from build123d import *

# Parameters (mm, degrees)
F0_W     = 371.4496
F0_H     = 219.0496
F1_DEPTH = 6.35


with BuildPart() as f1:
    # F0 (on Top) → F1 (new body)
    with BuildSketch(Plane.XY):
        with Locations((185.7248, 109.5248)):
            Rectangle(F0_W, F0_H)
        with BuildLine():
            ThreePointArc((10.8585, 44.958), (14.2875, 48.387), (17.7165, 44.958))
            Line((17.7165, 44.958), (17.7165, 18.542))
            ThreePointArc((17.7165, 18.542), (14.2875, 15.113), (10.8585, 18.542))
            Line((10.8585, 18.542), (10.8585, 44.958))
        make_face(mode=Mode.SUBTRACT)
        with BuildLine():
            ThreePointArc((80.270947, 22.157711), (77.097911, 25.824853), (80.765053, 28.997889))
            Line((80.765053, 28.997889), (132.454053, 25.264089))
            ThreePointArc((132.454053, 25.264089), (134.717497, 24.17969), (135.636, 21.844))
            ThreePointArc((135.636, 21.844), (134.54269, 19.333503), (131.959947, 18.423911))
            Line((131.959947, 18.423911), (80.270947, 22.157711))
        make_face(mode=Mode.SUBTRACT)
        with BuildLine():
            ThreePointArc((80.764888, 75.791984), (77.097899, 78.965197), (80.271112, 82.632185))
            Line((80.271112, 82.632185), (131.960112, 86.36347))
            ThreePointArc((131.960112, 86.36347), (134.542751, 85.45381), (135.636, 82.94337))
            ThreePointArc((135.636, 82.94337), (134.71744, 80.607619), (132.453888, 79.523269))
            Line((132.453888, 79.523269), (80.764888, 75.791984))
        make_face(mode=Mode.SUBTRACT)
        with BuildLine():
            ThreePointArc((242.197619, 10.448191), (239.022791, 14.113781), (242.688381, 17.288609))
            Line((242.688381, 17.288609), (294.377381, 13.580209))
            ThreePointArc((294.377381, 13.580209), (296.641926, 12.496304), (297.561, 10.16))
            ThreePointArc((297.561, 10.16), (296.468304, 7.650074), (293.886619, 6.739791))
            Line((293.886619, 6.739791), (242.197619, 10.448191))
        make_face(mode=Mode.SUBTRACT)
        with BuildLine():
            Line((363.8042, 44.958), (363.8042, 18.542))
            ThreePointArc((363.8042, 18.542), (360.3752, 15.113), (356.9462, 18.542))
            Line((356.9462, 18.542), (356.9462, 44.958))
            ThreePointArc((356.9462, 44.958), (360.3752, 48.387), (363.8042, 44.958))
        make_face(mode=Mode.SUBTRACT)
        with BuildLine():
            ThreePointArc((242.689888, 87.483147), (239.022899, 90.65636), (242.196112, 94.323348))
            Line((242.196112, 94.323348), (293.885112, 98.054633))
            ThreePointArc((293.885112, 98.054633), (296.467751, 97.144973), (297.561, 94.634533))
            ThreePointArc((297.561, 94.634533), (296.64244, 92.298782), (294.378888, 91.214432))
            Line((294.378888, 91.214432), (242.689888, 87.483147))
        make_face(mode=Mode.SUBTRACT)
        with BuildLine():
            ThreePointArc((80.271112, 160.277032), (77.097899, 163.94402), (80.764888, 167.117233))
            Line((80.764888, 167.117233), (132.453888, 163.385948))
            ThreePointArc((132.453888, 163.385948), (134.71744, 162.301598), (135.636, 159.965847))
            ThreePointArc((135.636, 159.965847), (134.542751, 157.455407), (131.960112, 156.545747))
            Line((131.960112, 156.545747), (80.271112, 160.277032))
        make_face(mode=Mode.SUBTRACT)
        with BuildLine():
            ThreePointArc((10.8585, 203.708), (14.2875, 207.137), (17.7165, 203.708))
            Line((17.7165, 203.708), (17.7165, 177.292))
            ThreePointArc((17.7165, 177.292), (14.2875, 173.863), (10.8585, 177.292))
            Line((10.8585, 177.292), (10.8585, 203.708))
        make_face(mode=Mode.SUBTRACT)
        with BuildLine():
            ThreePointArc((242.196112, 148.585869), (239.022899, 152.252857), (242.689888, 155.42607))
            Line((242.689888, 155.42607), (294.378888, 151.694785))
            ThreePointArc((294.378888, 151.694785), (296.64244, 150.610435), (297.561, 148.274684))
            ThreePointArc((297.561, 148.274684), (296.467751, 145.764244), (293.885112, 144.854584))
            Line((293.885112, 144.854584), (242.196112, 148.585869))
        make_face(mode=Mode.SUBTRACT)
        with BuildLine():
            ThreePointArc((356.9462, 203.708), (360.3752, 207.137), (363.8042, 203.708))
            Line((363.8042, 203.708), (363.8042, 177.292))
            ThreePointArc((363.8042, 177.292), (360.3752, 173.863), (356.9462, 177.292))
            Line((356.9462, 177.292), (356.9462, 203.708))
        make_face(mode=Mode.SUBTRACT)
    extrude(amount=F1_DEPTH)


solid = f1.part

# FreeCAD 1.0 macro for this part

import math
import FreeCAD as App
import Part
import Sketcher

V = App.Vector
Q = App.Units.Quantity


def add_polygon(sketch, points):
    """Adds a closed chain of lines whose ends are joined by coincident constraints."""
    first, n = sketch.GeometryCount, len(points)
    for a, b in zip(points, points[1:] + points[:1]):
        sketch.addGeometry(Part.LineSegment(App.Vector(*a, 0), App.Vector(*b, 0)), False)
    for i in range(n):
        sketch.addConstraint(Sketcher.Constraint("Coincident", first + i, 2, first + (i + 1) % n, 1))

doc = App.newDocument("Part")
body = doc.addObject("PartDesign::Body", "Body")

# Sketch on XY plane
sketch1 = body.newObject("Sketcher::SketchObject", "Sketch")
sketch1.AttachmentSupport = (doc.getObject("XY_Plane"), [""])
sketch1.MapMode = "FlatFace"
add_polygon(sketch1, [(0, 219.0496), (0, 0), (371.4496, 0), (371.4496, 219.0496)])  # lines 0-3
sketch1.addGeometry(Part.LineSegment(V(10.8585, 18.542, 0), V(10.8585, 44.958, 0)), False)  # 4
sketch1.addGeometry(Part.ArcOfCircle(Part.Circle(V(14.2875, 44.958, 0), V(0, 0, 1), 3.429), math.radians(0), math.radians(180)), False)  # 5
sketch1.addGeometry(Part.LineSegment(V(17.7165, 44.958, 0), V(17.7165, 18.542, 0)), False)  # 6
sketch1.addGeometry(Part.ArcOfCircle(Part.Circle(V(14.2875, 18.542, 0), V(0, 0, 1), 3.429), math.radians(180), math.radians(360)), False)  # 7
sketch1.addGeometry(Part.LineSegment(V(131.959947, 18.423911, 0), V(80.270947, 22.157711, 0)), False)  # 8
sketch1.addGeometry(Part.ArcOfCircle(Part.Circle(V(80.518, 25.5778, 0), V(0, 0, 1), 3.429), math.radians(85.868368), math.radians(265.868368)), False)  # 9
sketch1.addGeometry(Part.LineSegment(V(80.765053, 28.997889, 0), V(132.454053, 25.264089, 0)), False)  # 10
sketch1.addGeometry(Part.ArcOfCircle(Part.Circle(V(132.207, 21.844, 0), V(0, 0, 1), 3.429), math.radians(-0.000007), math.radians(85.868367)), False)  # 11
sketch1.addGeometry(Part.ArcOfCircle(Part.Circle(V(132.207, 21.844, 0), V(0, 0, 1), 3.429), math.radians(-94.131632), math.radians(0.000006)), False)  # 12
sketch1.addGeometry(Part.LineSegment(V(132.453888, 79.523269, 0), V(80.764888, 75.791984, 0)), False)  # 13
sketch1.addGeometry(Part.ArcOfCircle(Part.Circle(V(80.518, 79.212084, 0), V(0, 0, 1), 3.429), math.radians(94.128861), math.radians(274.128876)), False)  # 14
sketch1.addGeometry(Part.LineSegment(V(80.271112, 82.632185, 0), V(131.960112, 86.36347, 0)), False)  # 15
sketch1.addGeometry(Part.ArcOfCircle(Part.Circle(V(132.207001, 82.943371, 0), V(0, 0, 1), 3.428999), math.radians(-0.00001), math.radians(94.128886)), False)  # 16
sketch1.addGeometry(Part.ArcOfCircle(Part.Circle(V(132.206999, 82.94337, 0), V(0, 0, 1), 3.429001), math.radians(-85.871121), math.radians(-0.000002)), False)  # 17
sketch1.addGeometry(Part.LineSegment(V(293.886619, 6.739791, 0), V(242.197619, 10.448191, 0)), False)  # 18
sketch1.addGeometry(Part.ArcOfCircle(Part.Circle(V(242.443, 13.8684, 0), V(0, 0, 1), 3.429), math.radians(85.896377), math.radians(265.896377)), False)  # 19
sketch1.addGeometry(Part.LineSegment(V(242.688381, 17.288609, 0), V(294.377381, 13.580209, 0)), False)  # 20
sketch1.addGeometry(Part.ArcOfCircle(Part.Circle(V(294.132001, 10.160001, 0), V(0, 0, 1), 3.428999), math.radians(-0.000023), math.radians(85.896399)), False)  # 21
sketch1.addGeometry(Part.ArcOfCircle(Part.Circle(V(294.132001, 10.159999, 0), V(0, 0, 1), 3.428999), math.radians(-94.103643), math.radians(0.000021)), False)  # 22
sketch1.addGeometry(Part.ArcOfCircle(Part.Circle(V(360.3752, 44.958, 0), V(0, 0, 1), 3.429), math.radians(0), math.radians(180)), False)  # 23
sketch1.addGeometry(Part.LineSegment(V(363.8042, 44.958, 0), V(363.8042, 18.542, 0)), False)  # 24
sketch1.addGeometry(Part.ArcOfCircle(Part.Circle(V(360.3752, 18.542, 0), V(0, 0, 1), 3.429), math.radians(180), math.radians(360)), False)  # 25
sketch1.addGeometry(Part.LineSegment(V(356.9462, 18.542, 0), V(356.9462, 44.958, 0)), False)  # 26
sketch1.addGeometry(Part.LineSegment(V(294.378888, 91.214432, 0), V(242.689888, 87.483147, 0)), False)  # 27
sketch1.addGeometry(Part.ArcOfCircle(Part.Circle(V(242.443, 90.903247, 0), V(0, 0, 1), 3.429), math.radians(94.128861), math.radians(274.128876)), False)  # 28
sketch1.addGeometry(Part.LineSegment(V(242.196112, 94.323348, 0), V(293.885112, 98.054633, 0)), False)  # 29
sketch1.addGeometry(Part.ArcOfCircle(Part.Circle(V(294.132001, 94.634534, 0), V(0, 0, 1), 3.428999), math.radians(-0.00001), math.radians(94.128886)), False)  # 30
sketch1.addGeometry(Part.ArcOfCircle(Part.Circle(V(294.131999, 94.634533, 0), V(0, 0, 1), 3.429001), math.radians(-85.871121), math.radians(-0.000002)), False)  # 31
sketch1.addGeometry(Part.LineSegment(V(10.8585, 177.292, 0), V(10.8585, 203.708, 0)), False)  # 32
sketch1.addGeometry(Part.ArcOfCircle(Part.Circle(V(14.2875, 203.708, 0), V(0, 0, 1), 3.429), math.radians(0), math.radians(180)), False)  # 33
sketch1.addGeometry(Part.LineSegment(V(17.7165, 203.708, 0), V(17.7165, 177.292, 0)), False)  # 34
sketch1.addGeometry(Part.ArcOfCircle(Part.Circle(V(14.2875, 177.292, 0), V(0, 0, 1), 3.429), math.radians(180), math.radians(360)), False)  # 35
sketch1.addGeometry(Part.LineSegment(V(131.960112, 156.545747, 0), V(80.271112, 160.277032, 0)), False)  # 36
sketch1.addGeometry(Part.ArcOfCircle(Part.Circle(V(80.518, 163.697133, 0), V(0, 0, 1), 3.429), math.radians(85.871124), math.radians(265.871139)), False)  # 37
sketch1.addGeometry(Part.LineSegment(V(80.764888, 167.117233, 0), V(132.453888, 163.385948, 0)), False)  # 38
sketch1.addGeometry(Part.ArcOfCircle(Part.Circle(V(132.206999, 159.965847, 0), V(0, 0, 1), 3.429001), math.radians(0.000002), math.radians(85.871121)), False)  # 39
sketch1.addGeometry(Part.ArcOfCircle(Part.Circle(V(132.207001, 159.965846, 0), V(0, 0, 1), 3.428999), math.radians(-94.128886), math.radians(0.00001)), False)  # 40
sketch1.addGeometry(Part.LineSegment(V(293.885112, 144.854584, 0), V(242.196112, 148.585869, 0)), False)  # 41
sketch1.addGeometry(Part.ArcOfCircle(Part.Circle(V(242.443, 152.00597, 0), V(0, 0, 1), 3.429), math.radians(85.871124), math.radians(265.871139)), False)  # 42
sketch1.addGeometry(Part.LineSegment(V(242.689888, 155.42607, 0), V(294.378888, 151.694785, 0)), False)  # 43
sketch1.addGeometry(Part.ArcOfCircle(Part.Circle(V(294.131999, 148.274684, 0), V(0, 0, 1), 3.429001), math.radians(0.000002), math.radians(85.871121)), False)  # 44
sketch1.addGeometry(Part.ArcOfCircle(Part.Circle(V(294.132001, 148.274683, 0), V(0, 0, 1), 3.428999), math.radians(-94.128886), math.radians(0.00001)), False)  # 45
sketch1.addGeometry(Part.LineSegment(V(356.9462, 177.292, 0), V(356.9462, 203.708, 0)), False)  # 46
sketch1.addGeometry(Part.ArcOfCircle(Part.Circle(V(360.3752, 203.708, 0), V(0, 0, 1), 3.429), math.radians(0), math.radians(180)), False)  # 47
sketch1.addGeometry(Part.LineSegment(V(363.8042, 203.708, 0), V(363.8042, 177.292, 0)), False)  # 48
sketch1.addGeometry(Part.ArcOfCircle(Part.Circle(V(360.3752, 177.292, 0), V(0, 0, 1), 3.429), math.radians(180), math.radians(360)), False)  # 49
sketch1.addConstraint(Sketcher.Constraint("Tangent", 4, 2, 5, 2))
sketch1.addConstraint(Sketcher.Constraint("Tangent", 5, 1, 6, 1))
sketch1.addConstraint(Sketcher.Constraint("Tangent", 6, 2, 7, 2))
sketch1.addConstraint(Sketcher.Constraint("Tangent", 7, 1, 4, 1))
sketch1.addConstraint(Sketcher.Constraint("Tangent", 8, 2, 9, 2))
sketch1.addConstraint(Sketcher.Constraint("Tangent", 9, 1, 10, 1))
sketch1.addConstraint(Sketcher.Constraint("Tangent", 10, 2, 11, 2))
sketch1.addConstraint(Sketcher.Constraint("Tangent", 11, 1, 12, 2))
sketch1.addConstraint(Sketcher.Constraint("Tangent", 12, 1, 8, 1))
sketch1.addConstraint(Sketcher.Constraint("Tangent", 13, 2, 14, 2))
sketch1.addConstraint(Sketcher.Constraint("Tangent", 14, 1, 15, 1))
sketch1.addConstraint(Sketcher.Constraint("Tangent", 15, 2, 16, 2))
sketch1.addConstraint(Sketcher.Constraint("Tangent", 16, 1, 17, 2))
sketch1.addConstraint(Sketcher.Constraint("Tangent", 17, 1, 13, 1))
sketch1.addConstraint(Sketcher.Constraint("Tangent", 18, 2, 19, 2))
sketch1.addConstraint(Sketcher.Constraint("Tangent", 19, 1, 20, 1))
sketch1.addConstraint(Sketcher.Constraint("Tangent", 20, 2, 21, 2))
sketch1.addConstraint(Sketcher.Constraint("Tangent", 21, 1, 22, 2))
sketch1.addConstraint(Sketcher.Constraint("Tangent", 22, 1, 18, 1))
sketch1.addConstraint(Sketcher.Constraint("Tangent", 23, 1, 24, 1))
sketch1.addConstraint(Sketcher.Constraint("Tangent", 24, 2, 25, 2))
sketch1.addConstraint(Sketcher.Constraint("Tangent", 25, 1, 26, 1))
sketch1.addConstraint(Sketcher.Constraint("Tangent", 26, 2, 23, 2))
sketch1.addConstraint(Sketcher.Constraint("Tangent", 27, 2, 28, 2))
sketch1.addConstraint(Sketcher.Constraint("Tangent", 28, 1, 29, 1))
sketch1.addConstraint(Sketcher.Constraint("Tangent", 29, 2, 30, 2))
sketch1.addConstraint(Sketcher.Constraint("Tangent", 30, 1, 31, 2))
sketch1.addConstraint(Sketcher.Constraint("Tangent", 31, 1, 27, 1))
sketch1.addConstraint(Sketcher.Constraint("Tangent", 32, 2, 33, 2))
sketch1.addConstraint(Sketcher.Constraint("Tangent", 33, 1, 34, 1))
sketch1.addConstraint(Sketcher.Constraint("Tangent", 34, 2, 35, 2))
sketch1.addConstraint(Sketcher.Constraint("Tangent", 35, 1, 32, 1))
sketch1.addConstraint(Sketcher.Constraint("Tangent", 36, 2, 37, 2))
sketch1.addConstraint(Sketcher.Constraint("Tangent", 37, 1, 38, 1))
sketch1.addConstraint(Sketcher.Constraint("Tangent", 38, 2, 39, 2))
sketch1.addConstraint(Sketcher.Constraint("Tangent", 39, 1, 40, 2))
sketch1.addConstraint(Sketcher.Constraint("Tangent", 40, 1, 36, 1))
sketch1.addConstraint(Sketcher.Constraint("Tangent", 41, 2, 42, 2))
sketch1.addConstraint(Sketcher.Constraint("Tangent", 42, 1, 43, 1))
sketch1.addConstraint(Sketcher.Constraint("Tangent", 43, 2, 44, 2))
sketch1.addConstraint(Sketcher.Constraint("Tangent", 44, 1, 45, 2))
sketch1.addConstraint(Sketcher.Constraint("Tangent", 45, 1, 41, 1))
sketch1.addConstraint(Sketcher.Constraint("Tangent", 46, 2, 47, 2))
sketch1.addConstraint(Sketcher.Constraint("Tangent", 47, 1, 48, 1))
sketch1.addConstraint(Sketcher.Constraint("Tangent", 48, 2, 49, 2))
sketch1.addConstraint(Sketcher.Constraint("Tangent", 49, 1, 46, 1))
sketch1.addConstraint(Sketcher.Constraint("Vertical", 0))
sketch1.addConstraint(Sketcher.Constraint("Horizontal", 1))
sketch1.addConstraint(Sketcher.Constraint("Vertical", 2))
sketch1.addConstraint(Sketcher.Constraint("Horizontal", 3))
sketch1.addConstraint(Sketcher.Constraint("Vertical", 4))
sketch1.addConstraint(Sketcher.Constraint("Vertical", 6))
sketch1.addConstraint(Sketcher.Constraint("Vertical", 24))
sketch1.addConstraint(Sketcher.Constraint("Vertical", 26))
sketch1.addConstraint(Sketcher.Constraint("Vertical", 32))
sketch1.addConstraint(Sketcher.Constraint("Vertical", 34))
sketch1.addConstraint(Sketcher.Constraint("Vertical", 46))
sketch1.addConstraint(Sketcher.Constraint("Vertical", 48))
sketch1.addConstraint(Sketcher.Constraint("Coincident", 0, 2, -1, 1))
sketch1.addConstraint(Sketcher.Constraint("Equal", 7, 9))
sketch1.addConstraint(Sketcher.Constraint("Equal", 9, 11))
sketch1.addConstraint(Sketcher.Constraint("Equal", 11, 12))
sketch1.addConstraint(Sketcher.Constraint("Equal", 12, 14))
sketch1.addConstraint(Sketcher.Constraint("Equal", 14, 16))
sketch1.addConstraint(Sketcher.Constraint("Equal", 16, 17))
sketch1.addConstraint(Sketcher.Constraint("Equal", 17, 19))
sketch1.addConstraint(Sketcher.Constraint("Equal", 19, 21))
sketch1.addConstraint(Sketcher.Constraint("Equal", 21, 22))
sketch1.addConstraint(Sketcher.Constraint("Equal", 22, 23))
sketch1.addConstraint(Sketcher.Constraint("Equal", 25, 28))
sketch1.addConstraint(Sketcher.Constraint("Equal", 28, 30))
sketch1.addConstraint(Sketcher.Constraint("Equal", 30, 31))
sketch1.addConstraint(Sketcher.Constraint("Equal", 31, 33))
sketch1.addConstraint(Sketcher.Constraint("Equal", 35, 37))
sketch1.addConstraint(Sketcher.Constraint("Equal", 37, 39))
sketch1.addConstraint(Sketcher.Constraint("Equal", 39, 40))
sketch1.addConstraint(Sketcher.Constraint("Equal", 40, 42))
sketch1.addConstraint(Sketcher.Constraint("Equal", 42, 44))
sketch1.addConstraint(Sketcher.Constraint("Equal", 44, 45))
sketch1.addConstraint(Sketcher.Constraint("Equal", 45, 47))
sketch1.addConstraint(Sketcher.Constraint("Parallel", 15, 27))
sketch1.addConstraint(Sketcher.Constraint("Parallel", 38, 41))
sketch1.addConstraint(Sketcher.Constraint("Horizontal", 5, 3, 23, 3))
sketch1.addConstraint(Sketcher.Constraint("Horizontal", 7, 3, 25, 3))
sketch1.addConstraint(Sketcher.Constraint("Horizontal", 33, 3, 47, 3))
sketch1.addConstraint(Sketcher.Constraint("Horizontal", 35, 3, 49, 3))
sketch1.addConstraint(Sketcher.Constraint("Horizontal", 12, 3, 11, 1))
sketch1.addConstraint(Sketcher.Constraint("Horizontal", 17, 3, 16, 1))
sketch1.addConstraint(Sketcher.Constraint("Horizontal", 22, 3, 21, 1))
sketch1.addConstraint(Sketcher.Constraint("Horizontal", 31, 3, 30, 1))
sketch1.addConstraint(Sketcher.Constraint("Horizontal", 40, 3, 39, 1))
sketch1.addConstraint(Sketcher.Constraint("Horizontal", 45, 3, 44, 1))
sketch1.addConstraint(Sketcher.Constraint("Vertical", 9, 3, 14, 3))
sketch1.addConstraint(Sketcher.Constraint("Vertical", 12, 3, 16, 3))
sketch1.addConstraint(Sketcher.Constraint("Vertical", 19, 3, 28, 3))
sketch1.addConstraint(Sketcher.Constraint("Vertical", 22, 3, 30, 3))
sketch1.addConstraint(Sketcher.Constraint("Vertical", 7, 3, 33, 3))
sketch1.addConstraint(Sketcher.Constraint("Vertical", 14, 3, 37, 3))
sketch1.addConstraint(Sketcher.Constraint("Vertical", 17, 3, 39, 3))
sketch1.addConstraint(Sketcher.Constraint("Vertical", 28, 3, 42, 3))
sketch1.addConstraint(Sketcher.Constraint("Vertical", 31, 3, 44, 3))
sketch1.addConstraint(Sketcher.Constraint("Vertical", 25, 3, 47, 3))
sketch1.addConstraint(Sketcher.Constraint("Vertical", 14, 1, 36, 2))
sketch1.addConstraint(Sketcher.Constraint("Equal", 26, 32))
sketch1.addConstraint(Sketcher.Constraint("Equal", 15, 27))
sketch1.addConstraint(Sketcher.Constraint("Radius", 5, Q("0.135 in")))
sketch1.addConstraint(Sketcher.Constraint("DistanceY", 4, 1, 4, 2, Q("1.04 in")))
sketch1.addConstraint(Sketcher.Constraint("DistanceY", -1, 1, 21, 3, Q("0.4000001 in")))
sketch1.addConstraint(Sketcher.Constraint("DistanceX", 1, 1, 1, 2, Q("14.624 in")))
sketch1.addConstraint(Sketcher.Constraint("DistanceY", 0, 2, 0, 1, Q("8.624 in")))
sketch1.addConstraint(Sketcher.Constraint("DistanceY", -1, 1, 5, 3, Q("1.77 in")))
sketch1.addConstraint(Sketcher.Constraint("DistanceX", -1, 1, 9, 3, Q("3.17 in")))
sketch1.addConstraint(Sketcher.Constraint("DistanceY", -1, 1, 11, 3, Q("0.86 in")))
sketch1.addConstraint(Sketcher.Constraint("DistanceX", -1, 1, 21, 3, Q("11.5800001 in")))
sketch1.addConstraint(Sketcher.Constraint("DistanceY", -1, 1, 33, 3, Q("8.02 in")))
sketch1.addConstraint(Sketcher.Constraint("DistanceX", -1, 1, 11, 1, Q("5.34 in")))
sketch1.addConstraint(Sketcher.Constraint("DistanceX", -1, 1, 5, 3, Q("0.5625 in")))
sketch1.addConstraint(Sketcher.Constraint("DistanceY", -1, 1, 9, 3, Q("1.007 in")))
sketch1.addConstraint(Sketcher.Constraint("DistanceY", -1, 1, 19, 3, Q("0.546 in")))
sketch1.addConstraint(Sketcher.Constraint("DistanceX", -1, 1, 23, 3, Q("14.188 in")))
sketch1.addConstraint(Sketcher.Constraint("Distance", 13, Q("51.823501 mm")))
sketch1.addConstraint(Sketcher.Constraint("DistanceY", -1, 1, 16, 3, Q("82.943371 mm")))
sketch1.addConstraint(Sketcher.Constraint("DistanceY", -1, 1, 42, 3, Q("152.00597 mm")))
sketch1.addConstraint(Sketcher.Constraint("DistanceY", -1, 1, 28, 1, Q("94.323348 mm")))
sketch1.addConstraint(Sketcher.Constraint("DistanceY", -1, 1, 36, 2, Q("160.277032 mm")))
pad1 = body.newObject("PartDesign::Pad", "Pad")
pad1.Profile = sketch1
pad1.Length = Q("0.25 in")

doc.recompute()
